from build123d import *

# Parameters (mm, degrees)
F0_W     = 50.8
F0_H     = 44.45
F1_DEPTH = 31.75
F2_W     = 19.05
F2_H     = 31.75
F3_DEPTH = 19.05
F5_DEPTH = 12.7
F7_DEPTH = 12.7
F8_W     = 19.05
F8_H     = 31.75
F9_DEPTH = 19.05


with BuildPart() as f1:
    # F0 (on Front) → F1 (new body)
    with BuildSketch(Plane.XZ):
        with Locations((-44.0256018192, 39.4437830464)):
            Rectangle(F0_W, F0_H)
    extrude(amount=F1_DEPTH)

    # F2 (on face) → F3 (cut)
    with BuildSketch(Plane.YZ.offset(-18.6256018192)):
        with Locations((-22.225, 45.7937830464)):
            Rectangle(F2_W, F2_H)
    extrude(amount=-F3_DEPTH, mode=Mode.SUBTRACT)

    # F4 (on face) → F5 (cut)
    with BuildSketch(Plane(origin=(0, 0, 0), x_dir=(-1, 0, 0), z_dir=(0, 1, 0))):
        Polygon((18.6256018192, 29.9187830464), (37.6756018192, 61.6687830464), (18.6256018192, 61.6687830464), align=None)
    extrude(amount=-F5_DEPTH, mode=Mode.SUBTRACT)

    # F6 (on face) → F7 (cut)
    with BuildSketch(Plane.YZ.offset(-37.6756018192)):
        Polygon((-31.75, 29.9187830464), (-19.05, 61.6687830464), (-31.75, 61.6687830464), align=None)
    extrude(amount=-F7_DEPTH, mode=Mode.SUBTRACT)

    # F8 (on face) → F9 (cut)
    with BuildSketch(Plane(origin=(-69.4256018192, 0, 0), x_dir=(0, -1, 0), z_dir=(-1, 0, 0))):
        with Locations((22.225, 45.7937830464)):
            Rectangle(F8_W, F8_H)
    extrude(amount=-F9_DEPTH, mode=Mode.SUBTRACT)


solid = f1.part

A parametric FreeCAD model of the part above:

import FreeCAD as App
import Part
import Sketcher

V = App.Vector
Q = App.Units.Quantity

doc = App.newDocument("Part")
params = doc.addObject("Spreadsheet::Sheet", "Params")
for row, (alias, value) in enumerate([
    ("sketch1_width", "2 in"),
    ("sketch1_height", "1.75 in"),
    ("pad1_length", "1.25 in"),
    ("sketch2_width", "0.75 in"),
    ("sketch2_height", "1.25 in"),
    ("pocket1_length", "0.75 in"),
    ("sketch3_width", "0.75 in"),
    ("sketch3_height", "1.25 in"),
    ("pocket2_length", "0.5 in"),
    ("sketch4_width", "0.5 in"),
    ("sketch4_height", "1.25 in"),
    ("pocket3_length", "0.5 in"),
    ("sketch5_width", "0.75 in"),
    ("sketch5_height", "1.25 in"),
    ("pocket4_length", "0.75 in"),
], start=1):
    params.set(f"A{row}", alias)
    params.set(f"B{row}", "=" + value)
    params.setAlias(f"B{row}", alias)

body = doc.addObject("PartDesign::Body", "Body")

# Sketch on XZ plane
sketch1 = doc.addObject("Sketcher::SketchObject", "Sketch")
body.addObject(sketch1)
sketch1.AttachmentSupport = (doc.XZ_Plane, [""])
sketch1.MapMode = "FlatFace"
sketch1.addGeometry([
    Part.LineSegment(V(-69, 62, 0), V(-69, 17, 0)),
    Part.LineSegment(V(-69, 17, 0), V(-19, 17, 0)),
    Part.LineSegment(V(-19, 17, 0), V(-19, 62, 0)),
    Part.LineSegment(V(-19, 62, 0), V(-69, 62, 0)),
], False)
sketch1.addConstraint([
    Sketcher.Constraint("Coincident", 0, 2, 1, 1),
    Sketcher.Constraint("Coincident", 1, 2, 2, 1),
    Sketcher.Constraint("Coincident", 2, 2, 3, 1),
    Sketcher.Constraint("Coincident", 3, 2, 0, 1),
    Sketcher.Constraint("Vertical", 0),
    Sketcher.Constraint("Horizontal", 1),
    Sketcher.Constraint("Vertical", 2),
    Sketcher.Constraint("Horizontal", 3),
    Sketcher.Constraint("DistanceX", 1, 1, 1, 2, Q("2 in")),
    Sketcher.Constraint("DistanceY", 0, 2, 0, 1, Q("1.75 in")),
    Sketcher.Constraint("DistanceX", 0, 2, -1, 1, Q("69.425602 mm")),
    Sketcher.Constraint("DistanceY", -1, 1, 0, 2, Q("17.218783 mm")),
])
sketch1.setExpression("Constraints[8]", "Params.sketch1_width")
sketch1.setExpression("Constraints[9]", "Params.sketch1_height")
pad1 = doc.addObject("PartDesign::Pad", "Pad")
body.addObject(pad1)
pad1.Profile = sketch1
pad1.setExpression("Length", "Params.pad1_length")

# Sketch on YZ plane
sketch2 = doc.addObject("Sketcher::SketchObject", "Sketch001")
body.addObject(sketch2)
sketch2.AttachmentSupport = (doc.YZ_Plane, [""])
sketch2.MapMode = "FlatFace"
sketch2.AttachmentOffset = App.Placement(V(0, 0, -18.625602), App.Rotation())
sketch2.addGeometry([
    Part.LineSegment(V(-32, 62, 0), V(-32, 30, 0)),
    Part.LineSegment(V(-32, 30, 0), V(-13, 30, 0)),
    Part.LineSegment(V(-13, 30, 0), V(-13, 62, 0)),
    Part.LineSegment(V(-13, 62, 0), V(-32, 62, 0)),
], False)
sketch2.addConstraint([
    Sketcher.Constraint("Coincident", 0, 2, 1, 1),
    Sketcher.Constraint("Coincident", 1, 2, 2, 1),
    Sketcher.Constraint("Coincident", 2, 2, 3, 1),
    Sketcher.Constraint("Coincident", 3, 2, 0, 1),
    Sketcher.Constraint("Vertical", 0),
    Sketcher.Constraint("Horizontal", 1),
    Sketcher.Constraint("Vertical", 2),
    Sketcher.Constraint("Horizontal", 3),
    Sketcher.Constraint("DistanceX", 1, 1, 1, 2, Q("0.75 in")),
    Sketcher.Constraint("DistanceY", 0, 2, 0, 1, Q("1.25 in")),
    Sketcher.Constraint("DistanceX", 1, 2, -1, 1, Q("0.5 in")),
    Sketcher.Constraint("DistanceY", -1, 1, 0, 2, Q("29.918783 mm")),
])
sketch2.setExpression("Constraints[8]", "Params.sketch2_width")
sketch2.setExpression("Constraints[9]", "Params.sketch2_height")
pocket1 = doc.addObject("PartDesign::Pocket", "Pocket")
body.addObject(pocket1)
pocket1.Profile = sketch2
pocket1.setExpression("Length", "Params.pocket1_length")

# Sketch on XZ plane
sketch3 = doc.addObject("Sketcher::SketchObject", "Sketch002")
body.addObject(sketch3)
sketch3.AttachmentSupport = (doc.XZ_Plane, [""])
sketch3.MapMode = "FlatFace"
sketch3.addGeometry([
    Part.LineSegment(V(-19, 30, 0), V(-38, 62, 0)),
    Part.LineSegment(V(-38, 62, 0), V(-19, 62, 0)),
    Part.LineSegment(V(-19, 62, 0), V(-19, 30, 0)),
], False)
sketch3.addConstraint([
    Sketcher.Constraint("Coincident", 0, 2, 1, 1),
    Sketcher.Constraint("Coincident", 1, 2, 2, 1),
    Sketcher.Constraint("Coincident", 2, 2, 0, 1),
    Sketcher.Constraint("Horizontal", 1),
    Sketcher.Constraint("Vertical", 2),
    Sketcher.Constraint("DistanceX", 1, 1, 1, 2, Q("0.75 in")),
    Sketcher.Constraint("DistanceY", 2, 2, 2, 1, Q("1.25 in")),
    Sketcher.Constraint("DistanceX", 0, 2, -1, 1, Q("37.675602 mm")),
    Sketcher.Constraint("DistanceY", -1, 1, 0, 2, Q("61.668783 mm")),
])
sketch3.setExpression("Constraints[5]", "Params.sketch3_width")
sketch3.setExpression("Constraints[6]", "Params.sketch3_height")
pocket2 = doc.addObject("PartDesign::Pocket", "Pocket001")
body.addObject(pocket2)
pocket2.Profile = sketch3
pocket2.setExpression("Length", "Params.pocket2_length")
pocket2.Reversed = True

# Sketch on YZ plane
sketch4 = doc.addObject("Sketcher::SketchObject", "Sketch003")
body.addObject(sketch4)
sketch4.AttachmentSupport = (doc.YZ_Plane, [""])
sketch4.MapMode = "FlatFace"
sketch4.AttachmentOffset = App.Placement(V(0, 0, -37.675602), App.Rotation())
sketch4.addGeometry([
    Part.LineSegment(V(-32, 30, 0), V(-19, 62, 0)),
    Part.LineSegment(V(-19, 62, 0), V(-32, 62, 0)),
    Part.LineSegment(V(-32, 62, 0), V(-32, 30, 0)),
], False)
sketch4.addConstraint([
    Sketcher.Constraint("Coincident", 0, 2, 1, 1),
    Sketcher.Constraint("Coincident", 1, 2, 2, 1),
    Sketcher.Constraint("Coincident", 2, 2, 0, 1),
    Sketcher.Constraint("Horizontal", 1),
    Sketcher.Constraint("Vertical", 2),
    Sketcher.Constraint("DistanceX", 1, 2, 1, 1, Q("0.5 in")),
    Sketcher.Constraint("DistanceY", 2, 2, 2, 1, Q("1.25 in")),
    Sketcher.Constraint("DistanceX", 0, 2, -1, 1, Q("0.75 in")),
    Sketcher.Constraint("DistanceY", -1, 1, 0, 2, Q("61.668783 mm")),
])
sketch4.setExpression("Constraints[5]", "Params.sketch4_width")
sketch4.setExpression("Constraints[6]", "Params.sketch4_height")
pocket3 = doc.addObject("PartDesign::Pocket", "Pocket002")
body.addObject(pocket3)
pocket3.Profile = sketch4
pocket3.setExpression("Length", "Params.pocket3_length")

# Sketch on YZ plane
sketch5 = doc.addObject("Sketcher::SketchObject", "Sketch004")
body.addObject(sketch5)
sketch5.AttachmentSupport = (doc.YZ_Plane, [""])
sketch5.MapMode = "FlatFace"
sketch5.AttachmentOffset = App.Placement(V(0, 0, -69.425602), App.Rotation())
sketch5.addGeometry([
    Part.LineSegment(V(-13, 62, 0), V(-13, 30, 0)),
    Part.LineSegment(V(-13, 30, 0), V(-32, 30, 0)),
    Part.LineSegment(V(-32, 30, 0), V(-32, 62, 0)),
    Part.LineSegment(V(-32, 62, 0), V(-13, 62, 0)),
], False)
sketch5.addConstraint([
    Sketcher.Constraint("Coincident", 0, 2, 1, 1),
    Sketcher.Constraint("Coincident", 1, 2, 2, 1),
    Sketcher.Constraint("Coincident", 2, 2, 3, 1),
    Sketcher.Constraint("Coincident", 3, 2, 0, 1),
    Sketcher.Constraint("Vertical", 0),
    Sketcher.Constraint("Horizontal", 1),
    Sketcher.Constraint("Vertical", 2),
    Sketcher.Constraint("Horizontal", 3),
    Sketcher.Constraint("DistanceX", 1, 2, 1, 1, Q("0.75 in")),
    Sketcher.Constraint("DistanceY", 0, 2, 0, 1, Q("1.25 in")),
    Sketcher.Constraint("DistanceX", 0, 2, -1, 1, Q("0.5 in")),
    Sketcher.Constraint("DistanceY", -1, 1, 0, 2, Q("29.918783 mm")),
])
sketch5.setExpression("Constraints[8]", "Params.sketch5_width")
sketch5.setExpression("Constraints[9]", "Params.sketch5_height")
pocket4 = doc.addObject("PartDesign::Pocket", "Pocket003")
body.addObject(pocket4)
pocket4.Profile = sketch5
pocket4.setExpression("Length", "Params.pocket4_length")
pocket4.Reversed = True

doc.recompute()
